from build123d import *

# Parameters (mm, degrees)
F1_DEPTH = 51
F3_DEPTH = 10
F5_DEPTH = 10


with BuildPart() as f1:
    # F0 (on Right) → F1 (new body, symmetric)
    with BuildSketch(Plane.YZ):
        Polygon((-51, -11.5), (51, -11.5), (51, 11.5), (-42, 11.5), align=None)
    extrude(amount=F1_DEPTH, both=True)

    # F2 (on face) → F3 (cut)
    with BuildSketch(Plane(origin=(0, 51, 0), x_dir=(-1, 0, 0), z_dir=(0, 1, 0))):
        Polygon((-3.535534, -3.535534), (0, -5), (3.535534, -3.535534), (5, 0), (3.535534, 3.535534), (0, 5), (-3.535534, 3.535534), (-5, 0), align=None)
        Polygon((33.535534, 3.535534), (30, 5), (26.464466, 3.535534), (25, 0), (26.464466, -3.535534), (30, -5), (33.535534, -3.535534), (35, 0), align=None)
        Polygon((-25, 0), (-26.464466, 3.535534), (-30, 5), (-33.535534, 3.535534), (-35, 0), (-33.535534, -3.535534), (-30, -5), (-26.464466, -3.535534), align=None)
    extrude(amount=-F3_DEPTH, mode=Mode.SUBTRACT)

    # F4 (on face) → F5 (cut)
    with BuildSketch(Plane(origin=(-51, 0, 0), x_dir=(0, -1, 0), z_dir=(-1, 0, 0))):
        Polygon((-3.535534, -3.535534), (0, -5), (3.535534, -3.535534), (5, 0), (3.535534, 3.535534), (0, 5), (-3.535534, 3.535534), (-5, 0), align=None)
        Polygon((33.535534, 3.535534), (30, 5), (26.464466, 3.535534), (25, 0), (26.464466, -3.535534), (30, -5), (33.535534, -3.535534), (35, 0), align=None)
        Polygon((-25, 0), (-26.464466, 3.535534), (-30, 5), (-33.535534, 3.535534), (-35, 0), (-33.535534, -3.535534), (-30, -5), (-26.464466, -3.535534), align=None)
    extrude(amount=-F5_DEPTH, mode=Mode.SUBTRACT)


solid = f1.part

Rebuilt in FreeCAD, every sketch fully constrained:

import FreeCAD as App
import Part
import Sketcher

V = App.Vector
Q = App.Units.Quantity


def add_polygon(sketch, points):
    """Adds a closed chain of lines whose ends are joined by coincident constraints."""
    first, n = sketch.GeometryCount, len(points)
    for a, b in zip(points, points[1:] + points[:1]):
        sketch.addGeometry(Part.LineSegment(App.Vector(*a, 0), App.Vector(*b, 0)), False)
    for i in range(n):
        sketch.addConstraint(Sketcher.Constraint("Coincident", first + i, 2, first + (i + 1) % n, 1))

doc = App.newDocument("Part")
params = doc.addObject("Spreadsheet::Sheet", "Params")
for row, (alias, value) in enumerate([
    ("sketch1_width", "102 mm"),
    ("sketch1_width2", "93 mm"),
    ("sketch1_height", "23 mm"),
    ("pad1_length", "102 mm"),
    ("pocket1_length", "10 mm"),
    ("pocket2_length", "10 mm"),
], start=1):
    params.set(f"A{row}", alias)
    params.set(f"B{row}", "=" + value)
    params.setAlias(f"B{row}", alias)

body = doc.addObject("PartDesign::Body", "Body")

# Sketch on YZ plane
sketch1 = body.newObject("Sketcher::SketchObject", "Sketch")
sketch1.AttachmentSupport = (doc.getObject("YZ_Plane"), [""])
sketch1.MapMode = "FlatFace"
add_polygon(sketch1, [(-51, -12), (51, -12), (51, 12), (-42, 12)])  # lines 0-3
sketch1.addConstraint(Sketcher.Constraint("Horizontal", 0))
sketch1.addConstraint(Sketcher.Constraint("Vertical", 1))
sketch1.addConstraint(Sketcher.Constraint("Horizontal", 2))
sketch1.addConstraint(Sketcher.Constraint("Symmetric", 1, 2, 3, 2, -1, 1))
sketch1.addConstraint(Sketcher.Constraint("DistanceX", 0, 1, 0, 2, 102.0))
sketch1.addConstraint(Sketcher.Constraint("DistanceX", 2, 2, 2, 1, 93.0))
sketch1.addConstraint(Sketcher.Constraint("DistanceY", 1, 1, 1, 2, 23.0))
sketch1.setExpression("Constraints[8]", "Params.sketch1_width")
sketch1.setExpression("Constraints[9]", "Params.sketch1_width2")
sketch1.setExpression("Constraints[10]", "Params.sketch1_height")
pad1 = body.newObject("PartDesign::Pad", "Pad")
pad1.Profile = sketch1
pad1.setExpression("Length", "Params.pad1_length")
pad1.Midplane = True

# Sketch on XZ plane
sketch2 = body.newObject("Sketcher::SketchObject", "Sketch001")
sketch2.AttachmentSupport = (doc.getObject("XZ_Plane"), [""])
sketch2.MapMode = "FlatFace"
sketch2.AttachmentOffset = App.Placement(V(0, 0, -51), App.Rotation())
add_polygon(sketch2, [(3.5, -3.5), (0, -5), (-3.5, -3.5), (-5, 0), (-3.5, 3.5), (0, 5), (3.5, 3.5), (5, 0)])  # lines 0-7
add_polygon(sketch2, [(-33.5, 3.5), (-30, 5), (-26.5, 3.5), (-25, 0), (-26.5, -3.5), (-30, -5), (-33.5, -3.5), (-35, 0)])  # lines 8-15
add_polygon(sketch2, [(25, 0), (26.5, 3.5), (30, 5), (33.5, 3.5), (35, 0), (33.5, -3.5), (30, -5), (26.5, -3.5)])  # lines 16-23
sketch2.addConstraint(Sketcher.Constraint("Symmetric", 0, 2, 4, 2, -1, 1))
sketch2.addConstraint(Sketcher.Constraint("Symmetric", 1, 2, 5, 2, -1, 1))
sketch2.addConstraint(Sketcher.Constraint("Symmetric", 2, 2, 6, 2, -1, 1))
sketch2.addConstraint(Sketcher.Constraint("Symmetric", 3, 2, 7, 2, -1, 1))
sketch2.addConstraint(Sketcher.Constraint("Symmetric", 11, 2, 16, 2, -1, 1))
sketch2.addConstraint(Sketcher.Constraint("Symmetric", 12, 2, 17, 2, -1, 1))
sketch2.addConstraint(Sketcher.Constraint("Symmetric", 13, 2, 18, 2, -1, 1))
sketch2.addConstraint(Sketcher.Constraint("Symmetric", 14, 2, 19, 2, -1, 1))
sketch2.addConstraint(Sketcher.Constraint("Symmetric", 15, 2, 20, 2, -1, 1))
sketch2.addConstraint(Sketcher.Constraint("Symmetric", 8, 2, 21, 2, -1, 1))
sketch2.addConstraint(Sketcher.Constraint("Symmetric", 9, 2, 22, 2, -1, 1))
sketch2.addConstraint(Sketcher.Constraint("Symmetric", 10, 2, 23, 2, -1, 1))
sketch2.addConstraint(Sketcher.Constraint("Symmetric", 3, 2, 5, 2, -2))
sketch2.addConstraint(Sketcher.Constraint("Symmetric", 9, 2, 16, 2, -2))
sketch2.addConstraint(Sketcher.Constraint("Symmetric", 8, 2, 17, 2, -2))
sketch2.addConstraint(Sketcher.Constraint("Symmetric", 15, 2, 18, 2, -2))
sketch2.addConstraint(Sketcher.Constraint("PointOnObject", 0, 2, -2))
sketch2.addConstraint(Sketcher.Constraint("PointOnObject", 2, 2, -1))
sketch2.addConstraint(Sketcher.Constraint("PointOnObject", 10, 2, -1))
sketch2.addConstraint(Sketcher.Constraint("PointOnObject", 14, 2, -1))
sketch2.addConstraint(Sketcher.Constraint("Perpendicular", 0, 2))
sketch2.addConstraint(Sketcher.Constraint("Perpendicular", 6, 8))
sketch2.addConstraint(Sketcher.Constraint("Perpendicular", 7, 9))
sketch2.addConstraint(Sketcher.Constraint("Perpendicular", 8, 10))
sketch2.addConstraint(Sketcher.Constraint("Perpendicular", 12, 14))
sketch2.addConstraint(Sketcher.Constraint("Horizontal", 4, 2, 8, 2))
sketch2.addConstraint(Sketcher.Constraint("Horizontal", 5, 2, 9, 2))
sketch2.addConstraint(Sketcher.Constraint("Horizontal", 11, 2, 13, 2))
sketch2.addConstraint(Sketcher.Constraint("Equal", 1, 2))
sketch2.addConstraint(Sketcher.Constraint("DistanceY", 0, 2, -1, 1, 5.0))
sketch2.addConstraint(Sketcher.Constraint("DistanceX", 8, 2, -1, 1, 30.0))
sketch2.addConstraint(Sketcher.Constraint("Angle", 0, Q("-157.500002 deg")))
pocket1 = body.newObject("PartDesign::Pocket", "Pocket")
pocket1.Profile = sketch2
pocket1.setExpression("Length", "Params.pocket1_length")
pocket1.Reversed = True

# Sketch on YZ plane
sketch3 = body.newObject("Sketcher::SketchObject", "Sketch002")
sketch3.AttachmentSupport = (doc.getObject("YZ_Plane"), [""])
sketch3.MapMode = "FlatFace"
sketch3.AttachmentOffset = App.Placement(V(0, 0, -51), App.Rotation())
add_polygon(sketch3, [(3.5, -3.5), (0, -5), (-3.5, -3.5), (-5, 0), (-3.5, 3.5), (0, 5), (3.5, 3.5), (5, 0)])  # lines 0-7
add_polygon(sketch3, [(-33.5, 3.5), (-30, 5), (-26.5, 3.5), (-25, 0), (-26.5, -3.5), (-30, -5), (-33.5, -3.5), (-35, 0)])  # lines 8-15
add_polygon(sketch3, [(25, 0), (26.5, 3.5), (30, 5), (33.5, 3.5), (35, 0), (33.5, -3.5), (30, -5), (26.5, -3.5)])  # lines 16-23
sketch3.addConstraint(Sketcher.Constraint("Symmetric", 0, 2, 4, 2, -1, 1))
sketch3.addConstraint(Sketcher.Constraint("Symmetric", 1, 2, 5, 2, -1, 1))
sketch3.addConstraint(Sketcher.Constraint("Symmetric", 2, 2, 6, 2, -1, 1))
sketch3.addConstraint(Sketcher.Constraint("Symmetric", 3, 2, 7, 2, -1, 1))
sketch3.addConstraint(Sketcher.Constraint("Symmetric", 11, 2, 16, 2, -1, 1))
sketch3.addConstraint(Sketcher.Constraint("Symmetric", 12, 2, 17, 2, -1, 1))
sketch3.addConstraint(Sketcher.Constraint("Symmetric", 13, 2, 18, 2, -1, 1))
sketch3.addConstraint(Sketcher.Constraint("Symmetric", 14, 2, 19, 2, -1, 1))
sketch3.addConstraint(Sketcher.Constraint("Symmetric", 15, 2, 20, 2, -1, 1))
sketch3.addConstraint(Sketcher.Constraint("Symmetric", 8, 2, 21, 2, -1, 1))
sketch3.addConstraint(Sketcher.Constraint("Symmetric", 9, 2, 22, 2, -1, 1))
sketch3.addConstraint(Sketcher.Constraint("Symmetric", 10, 2, 23, 2, -1, 1))
sketch3.addConstraint(Sketcher.Constraint("Symmetric", 3, 2, 5, 2, -2))
sketch3.addConstraint(Sketcher.Constraint("Symmetric", 9, 2, 16, 2, -2))
sketch3.addConstraint(Sketcher.Constraint("Symmetric", 8, 2, 17, 2, -2))
sketch3.addConstraint(Sketcher.Constraint("Symmetric", 15, 2, 18, 2, -2))
sketch3.addConstraint(Sketcher.Constraint("PointOnObject", 0, 2, -2))
sketch3.addConstraint(Sketcher.Constraint("PointOnObject", 2, 2, -1))
sketch3.addConstraint(Sketcher.Constraint("PointOnObject", 10, 2, -1))
sketch3.addConstraint(Sketcher.Constraint("PointOnObject", 14, 2, -1))
sketch3.addConstraint(Sketcher.Constraint("Perpendicular", 0, 2))
sketch3.addConstraint(Sketcher.Constraint("Perpendicular", 6, 8))
sketch3.addConstraint(Sketcher.Constraint("Perpendicular", 7, 9))
sketch3.addConstraint(Sketcher.Constraint("Perpendicular", 8, 10))
sketch3.addConstraint(Sketcher.Constraint("Perpendicular", 12, 14))
sketch3.addConstraint(Sketcher.Constraint("Horizontal", 4, 2, 8, 2))
sketch3.addConstraint(Sketcher.Constraint("Horizontal", 5, 2, 9, 2))
sketch3.addConstraint(Sketcher.Constraint("Horizontal", 11, 2, 13, 2))
sketch3.addConstraint(Sketcher.Constraint("Equal", 1, 2))
sketch3.addConstraint(Sketcher.Constraint("DistanceY", 0, 2, -1, 1, 5.0))
sketch3.addConstraint(Sketcher.Constraint("DistanceX", 8, 2, -1, 1, 30.0))
sketch3.addConstraint(Sketcher.Constraint("Angle", 0, Q("-157.500002 deg")))
pocket2 = body.newObject("PartDesign::Pocket", "Pocket001")
pocket2.Profile = sketch3
pocket2.setExpression("Length", "Params.pocket2_length")
pocket2.Reversed = True

doc.recompute()
